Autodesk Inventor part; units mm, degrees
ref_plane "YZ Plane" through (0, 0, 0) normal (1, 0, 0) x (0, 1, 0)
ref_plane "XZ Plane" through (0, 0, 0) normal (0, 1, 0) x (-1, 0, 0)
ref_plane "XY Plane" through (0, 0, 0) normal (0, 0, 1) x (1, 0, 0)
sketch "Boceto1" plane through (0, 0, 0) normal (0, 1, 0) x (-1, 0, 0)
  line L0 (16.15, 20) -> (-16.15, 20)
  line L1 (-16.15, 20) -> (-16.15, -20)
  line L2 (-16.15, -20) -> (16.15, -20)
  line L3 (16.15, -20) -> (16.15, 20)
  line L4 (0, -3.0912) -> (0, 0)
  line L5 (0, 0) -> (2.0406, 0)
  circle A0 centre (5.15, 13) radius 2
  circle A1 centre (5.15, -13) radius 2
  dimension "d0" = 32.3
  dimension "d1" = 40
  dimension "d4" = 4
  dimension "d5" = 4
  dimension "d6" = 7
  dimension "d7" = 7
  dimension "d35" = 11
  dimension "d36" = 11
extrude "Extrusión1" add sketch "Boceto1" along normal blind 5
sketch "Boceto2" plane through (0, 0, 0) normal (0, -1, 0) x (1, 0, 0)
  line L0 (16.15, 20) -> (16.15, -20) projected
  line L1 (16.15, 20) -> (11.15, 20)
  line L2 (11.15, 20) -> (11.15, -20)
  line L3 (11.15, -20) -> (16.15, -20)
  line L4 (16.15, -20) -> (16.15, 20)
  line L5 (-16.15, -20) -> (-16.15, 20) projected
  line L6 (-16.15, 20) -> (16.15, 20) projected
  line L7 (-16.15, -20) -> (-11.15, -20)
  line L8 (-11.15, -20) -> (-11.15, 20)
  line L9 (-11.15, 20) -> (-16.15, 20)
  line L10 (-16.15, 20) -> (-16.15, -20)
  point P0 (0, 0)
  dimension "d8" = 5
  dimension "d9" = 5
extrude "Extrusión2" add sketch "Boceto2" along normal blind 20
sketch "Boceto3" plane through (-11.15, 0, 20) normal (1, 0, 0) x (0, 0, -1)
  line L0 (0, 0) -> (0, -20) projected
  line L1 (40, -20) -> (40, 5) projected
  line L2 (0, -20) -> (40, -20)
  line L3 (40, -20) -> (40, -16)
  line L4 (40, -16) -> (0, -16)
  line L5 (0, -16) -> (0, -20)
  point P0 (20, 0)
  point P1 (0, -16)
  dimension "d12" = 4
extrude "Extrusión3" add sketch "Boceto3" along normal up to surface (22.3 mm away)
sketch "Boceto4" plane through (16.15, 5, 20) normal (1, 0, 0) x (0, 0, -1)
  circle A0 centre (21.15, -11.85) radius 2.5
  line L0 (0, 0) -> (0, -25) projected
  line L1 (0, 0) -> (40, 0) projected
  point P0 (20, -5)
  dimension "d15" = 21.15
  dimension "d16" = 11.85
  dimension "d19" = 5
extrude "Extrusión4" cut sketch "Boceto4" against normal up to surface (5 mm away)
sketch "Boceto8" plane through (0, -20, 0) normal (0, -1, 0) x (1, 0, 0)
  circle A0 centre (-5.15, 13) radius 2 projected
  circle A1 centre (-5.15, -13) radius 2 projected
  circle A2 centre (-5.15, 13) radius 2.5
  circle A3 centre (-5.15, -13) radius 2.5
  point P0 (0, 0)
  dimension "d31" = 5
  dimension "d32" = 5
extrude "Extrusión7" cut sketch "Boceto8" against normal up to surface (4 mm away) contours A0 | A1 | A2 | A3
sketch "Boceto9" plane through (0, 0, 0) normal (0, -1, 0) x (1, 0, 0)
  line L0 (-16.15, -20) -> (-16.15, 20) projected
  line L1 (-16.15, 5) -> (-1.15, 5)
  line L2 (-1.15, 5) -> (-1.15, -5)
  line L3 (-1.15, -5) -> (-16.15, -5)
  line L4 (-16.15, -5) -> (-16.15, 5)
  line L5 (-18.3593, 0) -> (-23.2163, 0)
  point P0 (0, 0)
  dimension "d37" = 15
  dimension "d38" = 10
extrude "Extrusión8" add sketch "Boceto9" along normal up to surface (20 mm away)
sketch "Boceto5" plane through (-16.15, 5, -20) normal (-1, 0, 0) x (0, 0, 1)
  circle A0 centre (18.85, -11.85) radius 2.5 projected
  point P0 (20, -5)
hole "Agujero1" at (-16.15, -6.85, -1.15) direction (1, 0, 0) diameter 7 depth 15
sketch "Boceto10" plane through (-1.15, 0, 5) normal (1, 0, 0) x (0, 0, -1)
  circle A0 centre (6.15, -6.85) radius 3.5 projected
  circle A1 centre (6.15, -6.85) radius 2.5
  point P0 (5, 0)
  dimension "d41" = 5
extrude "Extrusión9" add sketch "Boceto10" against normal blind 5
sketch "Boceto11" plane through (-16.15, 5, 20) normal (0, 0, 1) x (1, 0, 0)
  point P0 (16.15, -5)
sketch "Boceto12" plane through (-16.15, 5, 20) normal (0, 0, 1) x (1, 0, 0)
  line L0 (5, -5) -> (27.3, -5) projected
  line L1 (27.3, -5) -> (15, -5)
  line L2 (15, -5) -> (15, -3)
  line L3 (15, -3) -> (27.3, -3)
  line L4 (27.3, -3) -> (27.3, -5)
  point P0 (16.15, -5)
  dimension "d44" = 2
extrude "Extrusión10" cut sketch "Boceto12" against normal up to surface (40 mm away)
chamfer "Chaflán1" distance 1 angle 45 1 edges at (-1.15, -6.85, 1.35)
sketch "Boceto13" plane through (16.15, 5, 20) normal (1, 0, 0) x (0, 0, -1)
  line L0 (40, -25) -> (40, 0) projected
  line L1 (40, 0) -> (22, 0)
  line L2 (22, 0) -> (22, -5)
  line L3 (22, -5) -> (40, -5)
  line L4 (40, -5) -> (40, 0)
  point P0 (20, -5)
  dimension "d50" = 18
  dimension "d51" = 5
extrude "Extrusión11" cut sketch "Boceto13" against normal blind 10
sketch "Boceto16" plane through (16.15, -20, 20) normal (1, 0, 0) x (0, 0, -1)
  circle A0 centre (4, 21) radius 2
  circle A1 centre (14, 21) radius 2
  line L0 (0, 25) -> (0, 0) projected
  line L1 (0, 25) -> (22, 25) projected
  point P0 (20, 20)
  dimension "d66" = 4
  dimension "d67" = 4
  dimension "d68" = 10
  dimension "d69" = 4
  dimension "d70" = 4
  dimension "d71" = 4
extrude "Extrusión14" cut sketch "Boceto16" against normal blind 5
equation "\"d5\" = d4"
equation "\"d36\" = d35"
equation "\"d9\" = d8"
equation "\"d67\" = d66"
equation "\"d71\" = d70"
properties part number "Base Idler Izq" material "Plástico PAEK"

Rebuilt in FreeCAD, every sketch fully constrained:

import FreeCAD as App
import Part
import Sketcher

V = App.Vector
Q = App.Units.Quantity


def edges_at(feature, points):
    """Names of the edges that pass closest to the given points."""
    edges = feature.Shape.Edges
    near = lambda p: min(range(len(edges)), key=lambda i: edges[i].distToShape(Part.Vertex(*p))[0])
    return sorted({f"Edge{near(p) + 1}" for p in points})

doc = App.newDocument("Part")
params = doc.addObject("Spreadsheet::Sheet", "Params")
for row, (alias, value) in enumerate([
    ("sketch1_diameter", "4 mm"),
    ("sketch1_height", "40 mm"),
    ("sketch1_width", "32.3 mm"),
    ("pad1_length", "5 mm"),
    ("sketch2_width", "5 mm"),
    ("sketch2_height", "40 mm"),
    ("pad2_length", "20 mm"),
    ("sketch3_width", "4 mm"),
    ("sketch3_height", "40 mm"),
    ("pad3_length", "22.3 mm"),
    ("sketch4_diameter", "5 mm"),
    ("pocket1_length", "5 mm"),
    ("sketch5_diameter", "5 mm"),
    ("pocket2_length", "4 mm"),
    ("sketch6_width", "15 mm"),
    ("sketch6_height", "10 mm"),
    ("pad4_length", "20 mm"),
    ("sketch7_diameter", "7 mm"),
    ("hole_diameter", "7 mm"),
    ("hole_depth", "15 mm"),
    ("sketch8_diameter", "5 mm"),
    ("sketch8_diameter2", "7 mm"),
    ("pad5_length", "5 mm"),
    ("sketch9_height", "2 mm"),
    ("sketch9_width", "12.3 mm"),
    ("pocket3_length", "40 mm"),
    ("chamfer_size", "1 mm"),
    ("sketch10_width", "5 mm"),
    ("sketch10_height", "18 mm"),
    ("pocket4_length", "10 mm"),
    ("sketch11_diameter", "4 mm"),
    ("pocket5_length", "5 mm"),
], start=1):
    params.set(f"A{row}", alias)
    params.set(f"B{row}", "=" + value)
    params.setAlias(f"B{row}", alias)

body = doc.addObject("PartDesign::Body", "Body")

# Sketch on XZ plane
sketch1 = body.newObject("Sketcher::SketchObject", "Sketch")
sketch1.AttachmentSupport = (doc.getObject("XZ_Plane"), [""])
sketch1.MapMode = "FlatFace"
sketch1.addGeometry(Part.LineSegment(V(-16.1, -20, 0), V(-16.1, 20, 0)), False)
sketch1.addGeometry(Part.LineSegment(V(-16.1, 20, 0), V(16.1, 20, 0)), False)
sketch1.addGeometry(Part.LineSegment(V(16.1, 20, 0), V(16.1, -20, 0)), False)
sketch1.addGeometry(Part.LineSegment(V(16.1, -20, 0), V(-16.1, -20, 0)), False)
sketch1.addGeometry(Part.Circle(V(-5.2, -13, 0), V(0, 0, 1), 2), False)
sketch1.addGeometry(Part.Circle(V(-5.2, 13, 0), V(0, 0, 1), 2), False)
sketch1.addConstraint(Sketcher.Constraint("Coincident", 0, 2, 1, 1))
sketch1.addConstraint(Sketcher.Constraint("Coincident", 1, 2, 2, 1))
sketch1.addConstraint(Sketcher.Constraint("Coincident", 2, 2, 3, 1))
sketch1.addConstraint(Sketcher.Constraint("Coincident", 3, 2, 0, 1))
sketch1.addConstraint(Sketcher.Constraint("Vertical", 0))
sketch1.addConstraint(Sketcher.Constraint("Horizontal", 1))
sketch1.addConstraint(Sketcher.Constraint("Vertical", 2))
sketch1.addConstraint(Sketcher.Constraint("Horizontal", 3))
sketch1.addConstraint(Sketcher.Constraint("Equal", 4, 5))
sketch1.addConstraint(Sketcher.Constraint("Symmetric", 0, 2, 2, 2, -1, 1))
sketch1.addConstraint(Sketcher.Constraint("Symmetric", 4, 3, 5, 3, -1))
sketch1.addConstraint(Sketcher.Constraint("Diameter", 4, Q("4 mm")))
sketch1.addConstraint(Sketcher.Constraint("DistanceY", 0, 1, 0, 2, Q("40 mm")))
sketch1.addConstraint(Sketcher.Constraint("DistanceX", 1, 1, 1, 2, Q("32.3 mm")))
sketch1.addConstraint(Sketcher.Constraint("DistanceX", 0, 2, 5, 3, Q("11 mm")))
sketch1.addConstraint(Sketcher.Constraint("DistanceY", 5, 3, 0, 2, Q("7 mm")))
sketch1.setExpression("Constraints[11]", "Params.sketch1_diameter")
sketch1.setExpression("Constraints[12]", "Params.sketch1_height")
sketch1.setExpression("Constraints[13]", "Params.sketch1_width")
pad1 = body.newObject("PartDesign::Pad", "Pad")
pad1.Profile = sketch1
pad1.setExpression("Length", "Params.pad1_length")
pad1.Reversed = True

# Sketch on XZ plane
sketch2 = body.newObject("Sketcher::SketchObject", "Sketch001")
sketch2.AttachmentSupport = (doc.getObject("XZ_Plane"), [""])
sketch2.MapMode = "FlatFace"
sketch2.addGeometry(Part.LineSegment(V(-11.2, -20, 0), V(-11.2, 20, 0)), False)
sketch2.addGeometry(Part.LineSegment(V(-11.2, 20, 0), V(-16.1, 20, 0)), False)
sketch2.addGeometry(Part.LineSegment(V(-16.1, 20, 0), V(-16.1, -20, 0)), False)
sketch2.addGeometry(Part.LineSegment(V(-16.1, -20, 0), V(-11.2, -20, 0)), False)
sketch2.addGeometry(Part.LineSegment(V(16.1, -20, 0), V(16.1, 20, 0)), False)
sketch2.addGeometry(Part.LineSegment(V(16.1, 20, 0), V(11.2, 20, 0)), False)
sketch2.addGeometry(Part.LineSegment(V(11.2, 20, 0), V(11.2, -20, 0)), False)
sketch2.addGeometry(Part.LineSegment(V(11.2, -20, 0), V(16.1, -20, 0)), False)
sketch2.addConstraint(Sketcher.Constraint("Coincident", 0, 2, 1, 1))
sketch2.addConstraint(Sketcher.Constraint("Coincident", 1, 2, 2, 1))
sketch2.addConstraint(Sketcher.Constraint("Coincident", 2, 2, 3, 1))
sketch2.addConstraint(Sketcher.Constraint("Coincident", 3, 2, 0, 1))
sketch2.addConstraint(Sketcher.Constraint("Coincident", 4, 2, 5, 1))
sketch2.addConstraint(Sketcher.Constraint("Coincident", 5, 2, 6, 1))
sketch2.addConstraint(Sketcher.Constraint("Coincident", 6, 2, 7, 1))
sketch2.addConstraint(Sketcher.Constraint("Coincident", 7, 2, 4, 1))
sketch2.addConstraint(Sketcher.Constraint("Vertical", 0))
sketch2.addConstraint(Sketcher.Constraint("Horizontal", 1))
sketch2.addConstraint(Sketcher.Constraint("Vertical", 2))
sketch2.addConstraint(Sketcher.Constraint("Horizontal", 3))
sketch2.addConstraint(Sketcher.Constraint("Vertical", 4))
sketch2.addConstraint(Sketcher.Constraint("Horizontal", 5))
sketch2.addConstraint(Sketcher.Constraint("Vertical", 6))
sketch2.addConstraint(Sketcher.Constraint("Horizontal", 7))
sketch2.addConstraint(Sketcher.Constraint("Symmetric", 2, 2, 4, 2, -1, 1))
sketch2.addConstraint(Sketcher.Constraint("Symmetric", 0, 2, 6, 2, -1, 1))
sketch2.addConstraint(Sketcher.Constraint("Horizontal", 1, 2, 4, 2))
sketch2.addConstraint(Sketcher.Constraint("DistanceX", 1, 2, 1, 1, Q("5 mm")))
sketch2.addConstraint(Sketcher.Constraint("DistanceY", 0, 1, 0, 2, Q("40 mm")))
sketch2.addConstraint(Sketcher.Constraint("DistanceX", 0, 2, 4, 2, Q("27.3 mm")))
sketch2.setExpression("Constraints[19]", "Params.sketch2_width")
sketch2.setExpression("Constraints[20]", "Params.sketch2_height")
pad2 = body.newObject("PartDesign::Pad", "Pad001")
pad2.Profile = sketch2
pad2.setExpression("Length", "Params.pad2_length")

# Sketch on YZ plane
sketch3 = body.newObject("Sketcher::SketchObject", "Sketch002")
sketch3.AttachmentSupport = (doc.getObject("YZ_Plane"), [""])
sketch3.MapMode = "FlatFace"
sketch3.AttachmentOffset = App.Placement(V(0, 0, -11.15), App.Rotation())
sketch3.addGeometry(Part.LineSegment(V(-16, -20, 0), V(-16, 20, 0)), False)
sketch3.addGeometry(Part.LineSegment(V(-16, 20, 0), V(-20, 20, 0)), False)
sketch3.addGeometry(Part.LineSegment(V(-20, 20, 0), V(-20, -20, 0)), False)
sketch3.addGeometry(Part.LineSegment(V(-20, -20, 0), V(-16, -20, 0)), False)
sketch3.addConstraint(Sketcher.Constraint("Coincident", 0, 2, 1, 1))
sketch3.addConstraint(Sketcher.Constraint("Coincident", 1, 2, 2, 1))
sketch3.addConstraint(Sketcher.Constraint("Coincident", 2, 2, 3, 1))
sketch3.addConstraint(Sketcher.Constraint("Coincident", 3, 2, 0, 1))
sketch3.addConstraint(Sketcher.Constraint("Vertical", 0))
sketch3.addConstraint(Sketcher.Constraint("Horizontal", 1))
sketch3.addConstraint(Sketcher.Constraint("Vertical", 2))
sketch3.addConstraint(Sketcher.Constraint("Horizontal", 3))
sketch3.addConstraint(Sketcher.Constraint("DistanceX", 1, 2, 1, 1, Q("4 mm")))
sketch3.addConstraint(Sketcher.Constraint("DistanceY", 0, 1, 0, 2, Q("40 mm")))
sketch3.addConstraint(Sketcher.Constraint("DistanceX", 0, 2, -1, 1, Q("16 mm")))
sketch3.addConstraint(Sketcher.Constraint("DistanceY", -1, 1, 0, 2, Q("20 mm")))
sketch3.setExpression("Constraints[8]", "Params.sketch3_width")
sketch3.setExpression("Constraints[9]", "Params.sketch3_height")
pad3 = body.newObject("PartDesign::Pad", "Pad002")
pad3.Profile = sketch3
pad3.setExpression("Length", "Params.pad3_length")

# Sketch on YZ plane
sketch4 = body.newObject("Sketcher::SketchObject", "Sketch003")
sketch4.AttachmentSupport = (doc.getObject("YZ_Plane"), [""])
sketch4.MapMode = "FlatFace"
sketch4.AttachmentOffset = App.Placement(V(0, 0, 16.15), App.Rotation())
sketch4.addGeometry(Part.Circle(V(-6.8, -1.1, 0), V(0, 0, 1), 2.5), False)
sketch4.addConstraint(Sketcher.Constraint("Diameter", 0, Q("5 mm")))
sketch4.addConstraint(Sketcher.Constraint("DistanceX", 0, 3, -1, 1, Q("6.85 mm")))
sketch4.addConstraint(Sketcher.Constraint("DistanceY", 0, 3, -1, 1, Q("1.15 mm")))
sketch4.setExpression("Constraints[0]", "Params.sketch4_diameter")
pocket1 = body.newObject("PartDesign::Pocket", "Pocket")
pocket1.Profile = sketch4
pocket1.setExpression("Length", "Params.pocket1_length")

# Sketch on XZ plane
sketch5 = body.newObject("Sketcher::SketchObject", "Sketch004")
sketch5.AttachmentSupport = (doc.getObject("XZ_Plane"), [""])
sketch5.MapMode = "FlatFace"
sketch5.AttachmentOffset = App.Placement(V(0, 0, 20), App.Rotation())
sketch5.addGeometry(Part.Circle(V(-5.2, 13, 0), V(0, 0, 1), 2.5), False)
sketch5.addGeometry(Part.Circle(V(-5.2, -13, 0), V(0, 0, 1), 2.5), False)
sketch5.addConstraint(Sketcher.Constraint("Equal", 0, 1))
sketch5.addConstraint(Sketcher.Constraint("Symmetric", 0, 3, 1, 3, -1))
sketch5.addConstraint(Sketcher.Constraint("Diameter", 0, Q("5 mm")))
sketch5.addConstraint(Sketcher.Constraint("DistanceY", -1, 1, 0, 3, Q("13 mm")))
sketch5.addConstraint(Sketcher.Constraint("DistanceX", 0, 3, -1, 1, Q("5.15 mm")))
sketch5.setExpression("Constraints[2]", "Params.sketch5_diameter")
pocket2 = body.newObject("PartDesign::Pocket", "Pocket001")
pocket2.Profile = sketch5
pocket2.setExpression("Length", "Params.pocket2_length")

# Sketch on XZ plane
sketch6 = body.newObject("Sketcher::SketchObject", "Sketch005")
sketch6.AttachmentSupport = (doc.getObject("XZ_Plane"), [""])
sketch6.MapMode = "FlatFace"
sketch6.addGeometry(Part.LineSegment(V(-16, 5, 0), V(-16, -5, 0)), False)
sketch6.addGeometry(Part.LineSegment(V(-16, -5, 0), V(-1, -5, 0)), False)
sketch6.addGeometry(Part.LineSegment(V(-1, -5, 0), V(-1, 5, 0)), False)
sketch6.addGeometry(Part.LineSegment(V(-1, 5, 0), V(-16, 5, 0)), False)
sketch6.addConstraint(Sketcher.Constraint("Coincident", 0, 2, 1, 1))
sketch6.addConstraint(Sketcher.Constraint("Coincident", 1, 2, 2, 1))
sketch6.addConstraint(Sketcher.Constraint("Coincident", 2, 2, 3, 1))
sketch6.addConstraint(Sketcher.Constraint("Coincident", 3, 2, 0, 1))
sketch6.addConstraint(Sketcher.Constraint("Vertical", 0))
sketch6.addConstraint(Sketcher.Constraint("Horizontal", 1))
sketch6.addConstraint(Sketcher.Constraint("Vertical", 2))
sketch6.addConstraint(Sketcher.Constraint("Horizontal", 3))
sketch6.addConstraint(Sketcher.Constraint("DistanceX", 1, 1, 1, 2, Q("15 mm")))
sketch6.addConstraint(Sketcher.Constraint("DistanceY", 0, 2, 0, 1, Q("10 mm")))
sketch6.addConstraint(Sketcher.Constraint("DistanceY", 0, 2, -1, 1, Q("5 mm")))
sketch6.addConstraint(Sketcher.Constraint("DistanceX", 0, 2, -1, 1, Q("16.15 mm")))
sketch6.setExpression("Constraints[8]", "Params.sketch6_width")
sketch6.setExpression("Constraints[9]", "Params.sketch6_height")
pad4 = body.newObject("PartDesign::Pad", "Pad003")
pad4.Profile = sketch6
pad4.setExpression("Length", "Params.pad4_length")

# Sketch on YZ plane
sketch7 = body.newObject("Sketcher::SketchObject", "Sketch006")
sketch7.AttachmentSupport = (doc.getObject("YZ_Plane"), [""])
sketch7.MapMode = "FlatFace"
sketch7.AttachmentOffset = App.Placement(V(0, 0, -16.15), App.Rotation())
sketch7.addGeometry(Part.Circle(V(-6.8, -1.1, 0), V(0, 0, 1), 3.5), False)
sketch7.addConstraint(Sketcher.Constraint("Diameter", 0, Q("7 mm")))
sketch7.addConstraint(Sketcher.Constraint("DistanceX", 0, 3, -1, 1, Q("6.85 mm")))
sketch7.addConstraint(Sketcher.Constraint("DistanceY", 0, 3, -1, 1, Q("1.15 mm")))
sketch7.setExpression("Constraints[0]", "Params.sketch7_diameter")
doc.recompute()
hole = body.newObject("PartDesign::Hole", "Hole")
hole.Profile = sketch7
hole.ThreadType = "None"
hole.setExpression("Diameter", "Params.hole_diameter")
hole.DepthType = "Dimension"
hole.setExpression("Depth", "Params.hole_depth")
hole.DrillPoint = "Flat"
hole.Reversed = True

# Sketch on YZ plane
sketch8 = body.newObject("Sketcher::SketchObject", "Sketch007")
sketch8.AttachmentSupport = (doc.getObject("YZ_Plane"), [""])
sketch8.MapMode = "FlatFace"
sketch8.AttachmentOffset = App.Placement(V(0, 0, -1.15), App.Rotation())
sketch8.addGeometry(Part.Circle(V(-6.8, -1.1, 0), V(0, 0, 1), 3.5), False)
sketch8.addGeometry(Part.Circle(V(-6.8, -1.1, 0), V(0, 0, 1), 2.5), False)
sketch8.addConstraint(Sketcher.Constraint("Coincident", 1, 3, 0, 3))
sketch8.addConstraint(Sketcher.Constraint("Diameter", 1, Q("5 mm")))
sketch8.addConstraint(Sketcher.Constraint("Diameter", 0, Q("7 mm")))
sketch8.addConstraint(Sketcher.Constraint("DistanceX", 0, 3, -1, 1, Q("6.85 mm")))
sketch8.addConstraint(Sketcher.Constraint("DistanceY", 0, 3, -1, 1, Q("1.15 mm")))
sketch8.setExpression("Constraints[1]", "Params.sketch8_diameter")
sketch8.setExpression("Constraints[2]", "Params.sketch8_diameter2")
pad5 = body.newObject("PartDesign::Pad", "Pad004")
pad5.Profile = sketch8
pad5.setExpression("Length", "Params.pad5_length")
pad5.Reversed = True

# Sketch on XY plane
sketch9 = body.newObject("Sketcher::SketchObject", "Sketch008")
sketch9.AttachmentSupport = (doc.getObject("XY_Plane"), [""])
sketch9.MapMode = "FlatFace"
sketch9.AttachmentOffset = App.Placement(V(0, 0, 20), App.Rotation())
sketch9.addGeometry(Part.LineSegment(V(-1.1, 2, 0), V(-1.1, 0, 0)), False)
sketch9.addGeometry(Part.LineSegment(V(-1.1, 0, 0), V(11.2, 0, 0)), False)
sketch9.addGeometry(Part.LineSegment(V(11.2, 0, 0), V(11.2, 2, 0)), False)
sketch9.addGeometry(Part.LineSegment(V(11.2, 2, 0), V(-1.1, 2, 0)), False)
sketch9.addConstraint(Sketcher.Constraint("Coincident", 0, 2, 1, 1))
sketch9.addConstraint(Sketcher.Constraint("Coincident", 1, 2, 2, 1))
sketch9.addConstraint(Sketcher.Constraint("Coincident", 2, 2, 3, 1))
sketch9.addConstraint(Sketcher.Constraint("Coincident", 3, 2, 0, 1))
sketch9.addConstraint(Sketcher.Constraint("Vertical", 0))
sketch9.addConstraint(Sketcher.Constraint("Horizontal", 1))
sketch9.addConstraint(Sketcher.Constraint("Vertical", 2))
sketch9.addConstraint(Sketcher.Constraint("Horizontal", 3))
sketch9.addConstraint(Sketcher.Constraint("PointOnObject", 0, 2, -1))
sketch9.addConstraint(Sketcher.Constraint("DistanceY", 0, 2, 0, 1, Q("2 mm")))
sketch9.addConstraint(Sketcher.Constraint("DistanceX", 1, 1, 1, 2, Q("12.3 mm")))
sketch9.addConstraint(Sketcher.Constraint("DistanceX", 0, 2, -1, 1, Q("1.15 mm")))
sketch9.setExpression("Constraints[9]", "Params.sketch9_height")
sketch9.setExpression("Constraints[10]", "Params.sketch9_width")
pocket3 = body.newObject("PartDesign::Pocket", "Pocket002")
pocket3.Profile = sketch9
pocket3.setExpression("Length", "Params.pocket3_length")
doc.recompute()

chamfer = body.newObject("PartDesign::Chamfer", "Chamfer")
chamfer.Base = (pocket3, edges_at(pocket3, [(-1.15, -6.85, 1.35)]))
chamfer.setExpression("Size", "Params.chamfer_size")

# Sketch on YZ plane
sketch10 = body.newObject("Sketcher::SketchObject", "Sketch009")
sketch10.AttachmentSupport = (doc.getObject("YZ_Plane"), [""])
sketch10.MapMode = "FlatFace"
sketch10.AttachmentOffset = App.Placement(V(0, 0, 16.15), App.Rotation())
sketch10.addGeometry(Part.LineSegment(V(0, -2, 0), V(0, -20, 0)), False)
sketch10.addGeometry(Part.LineSegment(V(0, -20, 0), V(5, -20, 0)), False)
sketch10.addGeometry(Part.LineSegment(V(5, -20, 0), V(5, -2, 0)), False)
sketch10.addGeometry(Part.LineSegment(V(5, -2, 0), V(0, -2, 0)), False)
sketch10.addConstraint(Sketcher.Constraint("Coincident", 0, 2, 1, 1))
sketch10.addConstraint(Sketcher.Constraint("Coincident", 1, 2, 2, 1))
sketch10.addConstraint(Sketcher.Constraint("Coincident", 2, 2, 3, 1))
sketch10.addConstraint(Sketcher.Constraint("Coincident", 3, 2, 0, 1))
sketch10.addConstraint(Sketcher.Constraint("Vertical", 0))
sketch10.addConstraint(Sketcher.Constraint("Horizontal", 1))
sketch10.addConstraint(Sketcher.Constraint("Vertical", 2))
sketch10.addConstraint(Sketcher.Constraint("Horizontal", 3))
sketch10.addConstraint(Sketcher.Constraint("PointOnObject", 0, 2, -2))
sketch10.addConstraint(Sketcher.Constraint("DistanceX", 1, 1, 1, 2, Q("5 mm")))
sketch10.addConstraint(Sketcher.Constraint("DistanceY", 0, 2, 0, 1, Q("18 mm")))
sketch10.addConstraint(Sketcher.Constraint("DistanceY", 0, 2, -1, 1, Q("20 mm")))
sketch10.setExpression("Constraints[9]", "Params.sketch10_width")
sketch10.setExpression("Constraints[10]", "Params.sketch10_height")
pocket4 = body.newObject("PartDesign::Pocket", "Pocket003")
pocket4.Profile = sketch10
pocket4.setExpression("Length", "Params.pocket4_length")

# Sketch on YZ plane
sketch11 = body.newObject("Sketcher::SketchObject", "Sketch010")
sketch11.AttachmentSupport = (doc.getObject("YZ_Plane"), [""])
sketch11.MapMode = "FlatFace"
sketch11.AttachmentOffset = App.Placement(V(0, 0, 16.15), App.Rotation())
sketch11.addGeometry(Part.Circle(V(1, 16, 0), V(0, 0, 1), 2), False)
sketch11.addGeometry(Part.Circle(V(1, 6, 0), V(0, 0, 1), 2), False)
sketch11.addConstraint(Sketcher.Constraint("Equal", 0, 1))
sketch11.addConstraint(Sketcher.Constraint("Vertical", 0, 3, 1, 3))
sketch11.addConstraint(Sketcher.Constraint("Diameter", 0, Q("4 mm")))
sketch11.addConstraint(Sketcher.Constraint("DistanceY", 1, 3, 0, 3, Q("10 mm")))
sketch11.addConstraint(Sketcher.Constraint("DistanceX", -1, 1, 0, 3, Q("1 mm")))
sketch11.addConstraint(Sketcher.Constraint("DistanceY", -1, 1, 0, 3, Q("16 mm")))
sketch11.setExpression("Constraints[2]", "Params.sketch11_diameter")
pocket5 = body.newObject("PartDesign::Pocket", "Pocket004")
pocket5.Profile = sketch11
pocket5.setExpression("Length", "Params.pocket5_length")

doc.recompute()
